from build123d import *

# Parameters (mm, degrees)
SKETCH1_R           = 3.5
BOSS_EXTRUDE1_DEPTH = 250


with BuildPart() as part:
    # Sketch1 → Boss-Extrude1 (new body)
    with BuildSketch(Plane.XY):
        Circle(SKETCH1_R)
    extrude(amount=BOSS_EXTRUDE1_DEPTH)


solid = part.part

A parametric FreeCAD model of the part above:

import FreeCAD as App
import Part
import Sketcher
Q = App.Units.Quantity

doc = App.newDocument("Part")
params = doc.addObject("Spreadsheet::Sheet", "Params")
for row, (alias, value) in enumerate([
    ("sketch1_diameter", "7 mm"),
    ("pad1_length", "250 mm"),
], start=1):
    params.set(f"A{row}", alias)
    params.set(f"B{row}", "=" + value)
    params.setAlias(f"B{row}", alias)

body = doc.addObject("PartDesign::Body", "Body")

# Sketch on XY plane
sketch1 = body.newObject("Sketcher::SketchObject", "Sketch")
sketch1.AttachmentSupport = (doc.getObject("XY_Plane"), [""])
sketch1.MapMode = "FlatFace"
sketch1.addGeometry(Part.Circle(App.Vector(0, 0, 0), App.Vector(0, 0, 1), 3.5), False)
sketch1.addConstraint(Sketcher.Constraint("Coincident", 0, 3, -1, 1))
sketch1.addConstraint(Sketcher.Constraint("Diameter", 0, Q("7 mm")))
sketch1.setExpression("Constraints[1]", "Params.sketch1_diameter")
pad1 = body.newObject("PartDesign::Pad", "Pad")
pad1.Profile = sketch1
pad1.setExpression("Length", "Params.pad1_length")

doc.recompute()
